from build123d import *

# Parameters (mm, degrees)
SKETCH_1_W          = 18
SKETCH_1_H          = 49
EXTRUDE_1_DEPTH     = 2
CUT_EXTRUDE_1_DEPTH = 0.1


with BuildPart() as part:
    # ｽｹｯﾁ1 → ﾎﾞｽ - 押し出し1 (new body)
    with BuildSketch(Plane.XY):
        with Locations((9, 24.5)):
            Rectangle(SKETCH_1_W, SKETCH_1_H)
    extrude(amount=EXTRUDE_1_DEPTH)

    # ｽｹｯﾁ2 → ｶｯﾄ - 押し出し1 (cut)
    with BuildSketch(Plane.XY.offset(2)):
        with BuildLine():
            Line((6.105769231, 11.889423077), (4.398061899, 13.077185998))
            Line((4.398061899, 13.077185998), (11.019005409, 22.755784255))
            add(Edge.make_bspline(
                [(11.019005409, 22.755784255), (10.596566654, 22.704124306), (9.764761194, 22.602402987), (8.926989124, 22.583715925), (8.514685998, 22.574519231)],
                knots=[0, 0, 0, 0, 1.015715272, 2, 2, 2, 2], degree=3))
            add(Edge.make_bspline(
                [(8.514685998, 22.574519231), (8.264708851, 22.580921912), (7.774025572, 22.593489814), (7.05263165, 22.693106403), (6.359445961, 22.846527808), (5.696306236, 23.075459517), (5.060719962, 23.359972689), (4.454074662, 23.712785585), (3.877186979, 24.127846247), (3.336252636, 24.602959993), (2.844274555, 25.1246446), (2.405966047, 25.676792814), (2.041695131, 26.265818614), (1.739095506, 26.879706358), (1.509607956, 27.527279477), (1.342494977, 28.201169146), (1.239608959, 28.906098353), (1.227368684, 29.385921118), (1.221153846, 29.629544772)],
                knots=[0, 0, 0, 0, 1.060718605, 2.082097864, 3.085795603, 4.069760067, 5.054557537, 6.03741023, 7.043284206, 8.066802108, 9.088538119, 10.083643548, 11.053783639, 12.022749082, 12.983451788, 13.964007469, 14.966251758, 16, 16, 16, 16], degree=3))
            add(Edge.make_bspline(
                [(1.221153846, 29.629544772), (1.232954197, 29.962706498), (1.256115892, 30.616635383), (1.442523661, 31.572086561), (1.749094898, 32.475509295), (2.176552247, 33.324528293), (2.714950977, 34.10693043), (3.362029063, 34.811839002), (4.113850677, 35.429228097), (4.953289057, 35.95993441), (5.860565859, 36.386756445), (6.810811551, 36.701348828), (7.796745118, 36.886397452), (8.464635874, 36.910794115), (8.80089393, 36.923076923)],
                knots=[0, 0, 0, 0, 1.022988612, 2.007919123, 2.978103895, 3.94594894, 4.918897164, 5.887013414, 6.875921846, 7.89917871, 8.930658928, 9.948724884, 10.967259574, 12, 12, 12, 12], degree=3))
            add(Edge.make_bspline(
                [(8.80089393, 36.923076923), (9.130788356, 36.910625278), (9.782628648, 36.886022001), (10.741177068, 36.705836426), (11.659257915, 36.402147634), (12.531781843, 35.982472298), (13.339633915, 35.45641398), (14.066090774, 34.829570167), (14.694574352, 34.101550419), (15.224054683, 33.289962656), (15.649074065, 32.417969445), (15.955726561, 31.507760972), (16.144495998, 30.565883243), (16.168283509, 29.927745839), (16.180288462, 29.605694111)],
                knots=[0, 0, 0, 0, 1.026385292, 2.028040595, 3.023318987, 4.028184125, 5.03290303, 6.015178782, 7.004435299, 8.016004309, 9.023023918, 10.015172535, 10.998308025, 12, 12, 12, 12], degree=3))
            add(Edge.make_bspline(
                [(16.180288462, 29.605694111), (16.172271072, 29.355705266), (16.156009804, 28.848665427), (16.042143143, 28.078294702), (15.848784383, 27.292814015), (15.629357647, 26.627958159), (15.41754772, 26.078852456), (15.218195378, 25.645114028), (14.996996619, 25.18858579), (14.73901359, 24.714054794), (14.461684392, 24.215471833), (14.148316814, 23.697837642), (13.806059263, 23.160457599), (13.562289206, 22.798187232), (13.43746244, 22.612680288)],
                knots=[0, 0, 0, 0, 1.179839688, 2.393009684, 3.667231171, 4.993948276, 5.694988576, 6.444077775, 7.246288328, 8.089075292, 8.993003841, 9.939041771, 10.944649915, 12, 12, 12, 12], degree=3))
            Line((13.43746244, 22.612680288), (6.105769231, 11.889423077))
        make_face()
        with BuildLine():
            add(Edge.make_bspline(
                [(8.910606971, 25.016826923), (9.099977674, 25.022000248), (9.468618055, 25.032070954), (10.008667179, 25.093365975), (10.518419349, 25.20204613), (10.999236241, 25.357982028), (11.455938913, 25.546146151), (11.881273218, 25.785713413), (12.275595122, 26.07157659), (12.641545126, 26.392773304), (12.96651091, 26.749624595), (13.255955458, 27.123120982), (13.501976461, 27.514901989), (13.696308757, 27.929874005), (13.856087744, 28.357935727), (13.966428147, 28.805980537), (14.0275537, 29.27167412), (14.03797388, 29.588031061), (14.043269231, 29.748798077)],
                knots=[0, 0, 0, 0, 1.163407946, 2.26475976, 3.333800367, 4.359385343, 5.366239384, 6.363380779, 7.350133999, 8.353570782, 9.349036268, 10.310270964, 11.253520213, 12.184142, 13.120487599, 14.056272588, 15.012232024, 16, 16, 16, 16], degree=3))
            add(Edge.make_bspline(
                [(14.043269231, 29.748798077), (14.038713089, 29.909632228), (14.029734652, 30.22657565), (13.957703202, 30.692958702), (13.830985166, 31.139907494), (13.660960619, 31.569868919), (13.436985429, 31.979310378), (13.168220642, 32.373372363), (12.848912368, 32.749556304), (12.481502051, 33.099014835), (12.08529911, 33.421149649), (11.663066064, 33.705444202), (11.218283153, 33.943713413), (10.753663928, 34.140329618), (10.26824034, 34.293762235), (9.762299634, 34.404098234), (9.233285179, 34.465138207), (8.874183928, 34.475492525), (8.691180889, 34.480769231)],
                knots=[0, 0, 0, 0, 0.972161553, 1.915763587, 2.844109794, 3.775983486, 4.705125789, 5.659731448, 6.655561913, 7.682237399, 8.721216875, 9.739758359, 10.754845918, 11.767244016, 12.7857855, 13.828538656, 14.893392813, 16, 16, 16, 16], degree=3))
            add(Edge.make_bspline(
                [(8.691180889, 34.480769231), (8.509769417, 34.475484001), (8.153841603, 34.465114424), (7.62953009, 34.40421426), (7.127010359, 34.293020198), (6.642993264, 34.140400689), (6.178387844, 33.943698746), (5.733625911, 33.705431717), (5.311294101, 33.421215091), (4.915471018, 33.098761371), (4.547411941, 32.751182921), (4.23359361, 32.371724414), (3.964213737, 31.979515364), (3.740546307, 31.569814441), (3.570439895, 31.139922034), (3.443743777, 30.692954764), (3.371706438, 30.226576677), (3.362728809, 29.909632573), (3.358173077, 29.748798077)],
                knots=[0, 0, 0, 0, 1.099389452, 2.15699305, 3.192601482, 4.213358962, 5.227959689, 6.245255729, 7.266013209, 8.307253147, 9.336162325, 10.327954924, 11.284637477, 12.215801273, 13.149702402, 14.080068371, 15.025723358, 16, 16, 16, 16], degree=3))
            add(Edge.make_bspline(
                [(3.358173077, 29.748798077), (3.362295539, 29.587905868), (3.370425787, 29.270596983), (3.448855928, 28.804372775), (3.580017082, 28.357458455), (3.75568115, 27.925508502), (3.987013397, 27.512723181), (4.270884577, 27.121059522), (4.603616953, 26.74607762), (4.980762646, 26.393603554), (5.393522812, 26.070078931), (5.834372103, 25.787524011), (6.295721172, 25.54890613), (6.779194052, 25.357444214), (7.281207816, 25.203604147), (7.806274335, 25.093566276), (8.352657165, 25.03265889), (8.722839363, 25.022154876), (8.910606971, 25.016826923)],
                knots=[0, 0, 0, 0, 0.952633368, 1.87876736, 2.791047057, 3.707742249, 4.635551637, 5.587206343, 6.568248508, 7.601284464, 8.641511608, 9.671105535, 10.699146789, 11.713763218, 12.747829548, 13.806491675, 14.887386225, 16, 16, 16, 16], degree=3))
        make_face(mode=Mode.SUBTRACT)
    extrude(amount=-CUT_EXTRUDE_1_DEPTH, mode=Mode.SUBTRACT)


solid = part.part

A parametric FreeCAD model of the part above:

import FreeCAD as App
import Part
import Sketcher
from FreeCAD import Vector
Q = App.Units.Quantity

doc = App.newDocument("Part")
body = doc.addObject("PartDesign::Body", "Body")

sketch1 = body.newObject("Sketcher::SketchObject", "Sketch")
sketch1.AttachmentSupport = (doc.getObject("XY_Plane"), [""])
sketch1.MapMode = "FlatFace"
sketch1.addGeometry(Part.LineSegment(Vector(0, 49, 0), Vector(0, 0, 0)), False)
sketch1.addGeometry(Part.LineSegment(Vector(0, 0, 0), Vector(18, 0, 0)), False)
sketch1.addGeometry(Part.LineSegment(Vector(18, 0, 0), Vector(18, 49, 0)), False)
sketch1.addGeometry(Part.LineSegment(Vector(18, 49, 0), Vector(0, 49, 0)), False)
sketch1.addConstraint(Sketcher.Constraint("Coincident", 0, 2, 1, 1))
sketch1.addConstraint(Sketcher.Constraint("Coincident", 1, 2, 2, 1))
sketch1.addConstraint(Sketcher.Constraint("Coincident", 2, 2, 3, 1))
sketch1.addConstraint(Sketcher.Constraint("Coincident", 3, 2, 0, 1))
sketch1.addConstraint(Sketcher.Constraint("Vertical", 0))
sketch1.addConstraint(Sketcher.Constraint("Horizontal", 1))
sketch1.addConstraint(Sketcher.Constraint("Vertical", 2))
sketch1.addConstraint(Sketcher.Constraint("Horizontal", 3))
sketch1.addConstraint(Sketcher.Constraint("Coincident", 0, 2, -1, 1))
sketch1.addConstraint(Sketcher.Constraint("DistanceX", 1, 1, 1, 2, Q("18 mm")))
sketch1.addConstraint(Sketcher.Constraint("DistanceY", 0, 2, 0, 1, Q("49 mm")))
pad1 = body.newObject("PartDesign::Pad", "Pad")
pad1.Profile = sketch1
pad1.Length = 2

sketch2 = body.newObject("Sketcher::SketchObject", "Sketch001")
sketch2.AttachmentSupport = (doc.getObject("XY_Plane"), [""])
sketch2.MapMode = "FlatFace"
sketch2.AttachmentOffset = App.Placement(Vector(0, 0, 2), App.Rotation())
sketch2.addGeometry(Part.LineSegment(Vector(4.398062, 13.077186, 0), Vector(6.105769, 11.889423, 0)), False)
sketch2.addGeometry(Part.LineSegment(Vector(6.105769, 11.889423, 0), Vector(13.437462, 22.61268, 0)), False)
sketch2.addGeometry(Part.BSplineCurve([Vector(16.180288, 29.605694, 0), Vector(16.172271, 29.355705, 0), Vector(16.15601, 28.848665, 0), Vector(16.042143, 28.078295, 0), Vector(15.848784, 27.292814, 0), Vector(15.629358, 26.627958, 0), Vector(15.417548, 26.078852, 0), Vector(15.218195, 25.645114, 0), Vector(14.996997, 25.188586, 0), Vector(14.739014, 24.714055, 0), Vector(14.461684, 24.215472, 0), Vector(14.148317, 23.697838, 0), Vector(13.806059, 23.160458, 0), Vector(13.562289, 22.798187, 0), Vector(13.437462, 22.61268, 0)], [4, 1, 1, 1, 1, 1, 1, 1, 1, 1, 1, 1, 4], [0, 1.179839688, 2.393009684, 3.667231171, 4.993948276, 5.694988576, 6.444077775, 7.246288328, 8.089075292, 8.993003841, 9.939041771, 10.944649915, 12], False, 3, [1, 1, 1, 1, 1, 1, 1, 1, 1, 1, 1, 1, 1, 1, 1], False), False)
sketch2.addGeometry(Part.BSplineCurve([Vector(8.800894, 36.923077, 0), Vector(9.130788, 36.910625, 0), Vector(9.782629, 36.886022, 0), Vector(10.741177, 36.705836, 0), Vector(11.659258, 36.402148, 0), Vector(12.531782, 35.982472, 0), Vector(13.339634, 35.456414, 0), Vector(14.066091, 34.82957, 0), Vector(14.694574, 34.10155, 0), Vector(15.224055, 33.289963, 0), Vector(15.649074, 32.417969, 0), Vector(15.955727, 31.507761, 0), Vector(16.144496, 30.565883, 0), Vector(16.168284, 29.927746, 0), Vector(16.180288, 29.605694, 0)], [4, 1, 1, 1, 1, 1, 1, 1, 1, 1, 1, 1, 4], [0, 1.026385292, 2.028040595, 3.023318987, 4.028184125, 5.03290303, 6.015178782, 7.004435299, 8.016004309, 9.023023918, 10.015172535, 10.998308025, 12], False, 3, [1, 1, 1, 1, 1, 1, 1, 1, 1, 1, 1, 1, 1, 1, 1], False), False)
sketch2.addGeometry(Part.BSplineCurve([Vector(1.221154, 29.629545, 0), Vector(1.232954, 29.962706, 0), Vector(1.256116, 30.616635, 0), Vector(1.442524, 31.572087, 0), Vector(1.749095, 32.475509, 0), Vector(2.176552, 33.324528, 0), Vector(2.714951, 34.10693, 0), Vector(3.362029, 34.811839, 0), Vector(4.113851, 35.429228, 0), Vector(4.953289, 35.959934, 0), Vector(5.860566, 36.386756, 0), Vector(6.810812, 36.701349, 0), Vector(7.796745, 36.886397, 0), Vector(8.464636, 36.910794, 0), Vector(8.800894, 36.923077, 0)], [4, 1, 1, 1, 1, 1, 1, 1, 1, 1, 1, 1, 4], [0, 1.022988612, 2.007919123, 2.978103895, 3.94594894, 4.918897164, 5.887013414, 6.875921846, 7.89917871, 8.930658928, 9.948724884, 10.967259574, 12], False, 3, [1, 1, 1, 1, 1, 1, 1, 1, 1, 1, 1, 1, 1, 1, 1], False), False)
sketch2.addGeometry(Part.BSplineCurve([Vector(8.514686, 22.574519, 0), Vector(8.264709, 22.580922, 0), Vector(7.774026, 22.59349, 0), Vector(7.052632, 22.693106, 0), Vector(6.359446, 22.846528, 0), Vector(5.696306, 23.07546, 0), Vector(5.06072, 23.359973, 0), Vector(4.454075, 23.712786, 0), Vector(3.877187, 24.127846, 0), Vector(3.336253, 24.60296, 0), Vector(2.844275, 25.124645, 0), Vector(2.405966, 25.676793, 0), Vector(2.041695, 26.265819, 0), Vector(1.739096, 26.879706, 0), Vector(1.509608, 27.527279, 0), Vector(1.342495, 28.201169, 0), Vector(1.239609, 28.906098, 0), Vector(1.227369, 29.385921, 0), Vector(1.221154, 29.629545, 0)], [4, 1, 1, 1, 1, 1, 1, 1, 1, 1, 1, 1, 1, 1, 1, 1, 4], [0, 1.060718605, 2.082097864, 3.085795603, 4.069760067, 5.054557537, 6.03741023, 7.043284206, 8.066802108, 9.088538119, 10.083643548, 11.053783639, 12.022749082, 12.983451788, 13.964007469, 14.966251758, 16], False, 3, [1, 1, 1, 1, 1, 1, 1, 1, 1, 1, 1, 1, 1, 1, 1, 1, 1, 1, 1], False), False)
sketch2.addGeometry(Part.BSplineCurve([Vector(11.019005, 22.755784, 0), Vector(10.596567, 22.704124, 0), Vector(9.764761, 22.602403, 0), Vector(8.926989, 22.583716, 0), Vector(8.514686, 22.574519, 0)], [4, 1, 4], [0, 1.015715272, 2], False, 3, [1, 1, 1, 1, 1], False), False)
sketch2.addGeometry(Part.LineSegment(Vector(11.019005, 22.755784, 0), Vector(4.398062, 13.077186, 0)), False)
sketch2.addGeometry(Part.BSplineCurve([Vector(3.358173, 29.748798, 0), Vector(3.362296, 29.587906, 0), Vector(3.370426, 29.270597, 0), Vector(3.448856, 28.804373, 0), Vector(3.580017, 28.357458, 0), Vector(3.755681, 27.925509, 0), Vector(3.987013, 27.512723, 0), Vector(4.270885, 27.12106, 0), Vector(4.603617, 26.746078, 0), Vector(4.980763, 26.393604, 0), Vector(5.393523, 26.070079, 0), Vector(5.834372, 25.787524, 0), Vector(6.295721, 25.548906, 0), Vector(6.779194, 25.357444, 0), Vector(7.281208, 25.203604, 0), Vector(7.806274, 25.093566, 0), Vector(8.352657, 25.032659, 0), Vector(8.722839, 25.022155, 0), Vector(8.910607, 25.016827, 0)], [4, 1, 1, 1, 1, 1, 1, 1, 1, 1, 1, 1, 1, 1, 1, 1, 4], [0, 0.952633368, 1.87876736, 2.791047057, 3.707742249, 4.635551637, 5.587206343, 6.568248508, 7.601284464, 8.641511608, 9.671105535, 10.699146789, 11.713763218, 12.747829548, 13.806491675, 14.887386225, 16], False, 3, [1, 1, 1, 1, 1, 1, 1, 1, 1, 1, 1, 1, 1, 1, 1, 1, 1, 1, 1], False), False)
sketch2.addGeometry(Part.BSplineCurve([Vector(8.691181, 34.480769, 0), Vector(8.509769, 34.475484, 0), Vector(8.153842, 34.465114, 0), Vector(7.62953, 34.404214, 0), Vector(7.12701, 34.29302, 0), Vector(6.642993, 34.140401, 0), Vector(6.178388, 33.943699, 0), Vector(5.733626, 33.705432, 0), Vector(5.311294, 33.421215, 0), Vector(4.915471, 33.098761, 0), Vector(4.547412, 32.751183, 0), Vector(4.233594, 32.371724, 0), Vector(3.964214, 31.979515, 0), Vector(3.740546, 31.569814, 0), Vector(3.57044, 31.139922, 0), Vector(3.443744, 30.692955, 0), Vector(3.371706, 30.226577, 0), Vector(3.362729, 29.909633, 0), Vector(3.358173, 29.748798, 0)], [4, 1, 1, 1, 1, 1, 1, 1, 1, 1, 1, 1, 1, 1, 1, 1, 4], [0, 1.099389452, 2.15699305, 3.192601482, 4.213358962, 5.227959689, 6.245255729, 7.266013209, 8.307253147, 9.336162325, 10.327954924, 11.284637477, 12.215801273, 13.149702402, 14.080068371, 15.025723358, 16], False, 3, [1, 1, 1, 1, 1, 1, 1, 1, 1, 1, 1, 1, 1, 1, 1, 1, 1, 1, 1], False), False)
sketch2.addGeometry(Part.BSplineCurve([Vector(14.043269, 29.748798, 0), Vector(14.038713, 29.909632, 0), Vector(14.029735, 30.226576, 0), Vector(13.957703, 30.692959, 0), Vector(13.830985, 31.139907, 0), Vector(13.660961, 31.569869, 0), Vector(13.436985, 31.97931, 0), Vector(13.168221, 32.373372, 0), Vector(12.848912, 32.749556, 0), Vector(12.481502, 33.099015, 0), Vector(12.085299, 33.42115, 0), Vector(11.663066, 33.705444, 0), Vector(11.218283, 33.943713, 0), Vector(10.753664, 34.14033, 0), Vector(10.26824, 34.293762, 0), Vector(9.7623, 34.404098, 0), Vector(9.233285, 34.465138, 0), Vector(8.874184, 34.475493, 0), Vector(8.691181, 34.480769, 0)], [4, 1, 1, 1, 1, 1, 1, 1, 1, 1, 1, 1, 1, 1, 1, 1, 4], [0, 0.972161553, 1.915763587, 2.844109794, 3.775983486, 4.705125789, 5.659731448, 6.655561913, 7.682237399, 8.721216875, 9.739758359, 10.754845918, 11.767244016, 12.7857855, 13.828538656, 14.893392813, 16], False, 3, [1, 1, 1, 1, 1, 1, 1, 1, 1, 1, 1, 1, 1, 1, 1, 1, 1, 1, 1], False), False)
sketch2.addGeometry(Part.BSplineCurve([Vector(8.910607, 25.016827, 0), Vector(9.099978, 25.022, 0), Vector(9.468618, 25.032071, 0), Vector(10.008667, 25.093366, 0), Vector(10.518419, 25.202046, 0), Vector(10.999236, 25.357982, 0), Vector(11.455939, 25.546146, 0), Vector(11.881273, 25.785713, 0), Vector(12.275595, 26.071577, 0), Vector(12.641545, 26.392773, 0), Vector(12.966511, 26.749625, 0), Vector(13.255955, 27.123121, 0), Vector(13.501976, 27.514902, 0), Vector(13.696309, 27.929874, 0), Vector(13.856088, 28.357936, 0), Vector(13.966428, 28.805981, 0), Vector(14.027554, 29.271674, 0), Vector(14.037974, 29.588031, 0), Vector(14.043269, 29.748798, 0)], [4, 1, 1, 1, 1, 1, 1, 1, 1, 1, 1, 1, 1, 1, 1, 1, 4], [0, 1.163407946, 2.26475976, 3.333800367, 4.359385343, 5.366239384, 6.363380779, 7.350133999, 8.353570782, 9.349036268, 10.310270964, 11.253520213, 12.184142, 13.120487599, 14.056272588, 15.012232024, 16], False, 3, [1, 1, 1, 1, 1, 1, 1, 1, 1, 1, 1, 1, 1, 1, 1, 1, 1, 1, 1], False), False)
sketch2.addConstraint(Sketcher.Constraint("Block", 2))
sketch2.addConstraint(Sketcher.Constraint("Block", 3))
sketch2.addConstraint(Sketcher.Constraint("Block", 4))
sketch2.addConstraint(Sketcher.Constraint("Block", 5))
sketch2.addConstraint(Sketcher.Constraint("Block", 6))
sketch2.addConstraint(Sketcher.Constraint("Block", 8))
sketch2.addConstraint(Sketcher.Constraint("Block", 9))
sketch2.addConstraint(Sketcher.Constraint("Block", 10))
sketch2.addConstraint(Sketcher.Constraint("Block", 11))
sketch2.addConstraint(Sketcher.Constraint("Coincident", 0, 2, 1, 1))
sketch2.addConstraint(Sketcher.Constraint("Coincident", 1, 2, 2, 2))
sketch2.addConstraint(Sketcher.Constraint("Coincident", 6, 1, 7, 1))
sketch2.addConstraint(Sketcher.Constraint("Coincident", 7, 2, 0, 1))
sketch2.addConstraint(Sketcher.Constraint("DistanceX", 7, 2, 1, 2, Q("9.039401 mm")))
sketch2.addConstraint(Sketcher.Constraint("Distance", 1, Q("12.990072 mm")))
sketch2.addConstraint(Sketcher.Constraint("DistanceX", -1, 1, 0, 2, Q("6.105769 mm")))
sketch2.addConstraint(Sketcher.Constraint("Distance", 0, Q("2.080155 mm")))
pocket1 = body.newObject("PartDesign::Pocket", "Pocket")
pocket1.Profile = sketch2
pocket1.Length = 0.1

doc.recompute()
